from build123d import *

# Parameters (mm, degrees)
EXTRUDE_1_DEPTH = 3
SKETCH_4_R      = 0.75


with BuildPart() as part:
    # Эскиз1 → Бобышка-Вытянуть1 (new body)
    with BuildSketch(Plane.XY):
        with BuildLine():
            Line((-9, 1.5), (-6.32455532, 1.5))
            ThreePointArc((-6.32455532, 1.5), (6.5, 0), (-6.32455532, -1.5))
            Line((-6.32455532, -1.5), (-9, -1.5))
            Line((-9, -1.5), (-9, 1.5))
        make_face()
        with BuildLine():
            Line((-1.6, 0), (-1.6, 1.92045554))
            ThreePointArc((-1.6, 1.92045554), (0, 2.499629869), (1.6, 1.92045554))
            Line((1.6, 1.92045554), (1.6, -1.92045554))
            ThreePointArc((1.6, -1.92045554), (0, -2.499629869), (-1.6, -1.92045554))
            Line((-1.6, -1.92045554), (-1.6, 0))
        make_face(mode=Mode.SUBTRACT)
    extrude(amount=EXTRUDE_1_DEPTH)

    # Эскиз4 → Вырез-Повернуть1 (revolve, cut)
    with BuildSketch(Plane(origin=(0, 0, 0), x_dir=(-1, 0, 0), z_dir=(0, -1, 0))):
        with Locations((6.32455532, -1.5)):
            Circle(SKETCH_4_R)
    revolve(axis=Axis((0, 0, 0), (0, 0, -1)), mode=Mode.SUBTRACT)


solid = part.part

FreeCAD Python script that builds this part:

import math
import FreeCAD as App
import Part
import Sketcher
from FreeCAD import Vector
Q = App.Units.Quantity

doc = App.newDocument("Part")
body = doc.addObject("PartDesign::Body", "Body")

sketch1 = body.newObject("Sketcher::SketchObject", "Sketch")
sketch1.AttachmentSupport = (doc.getObject("XY_Plane"), [""])
sketch1.MapMode = "FlatFace"
sketch1.addGeometry(Part.LineSegment(Vector(-6.324555, 1.5, 0), Vector(-9, 1.5, 0)), False)
sketch1.addGeometry(Part.LineSegment(Vector(-9, 1.5, 0), Vector(-9, -1.5, 0)), False)
sketch1.addGeometry(Part.LineSegment(Vector(-9, -1.5, 0), Vector(-6.324555, -1.5, 0)), False)
sketch1.addGeometry(Part.ArcOfCircle(Part.Circle(Vector(0, 0, 0), Vector(0, 0, 1), 6.5), math.radians(-166.657636), math.radians(166.657636)), False)
sketch1.addGeometry(Part.ArcOfCircle(Part.Circle(Vector(0, 0, 0), Vector(0, 0, 1), 2.49963), math.radians(50.201114), math.radians(129.798886)), False)
sketch1.addGeometry(Part.LineSegment(Vector(1.6, 1.920456, 0), Vector(1.6, -1.920456, 0)), False)
sketch1.addGeometry(Part.ArcOfCircle(Part.Circle(Vector(0, 0, 0), Vector(0, 0, 1), 2.49963), math.radians(-129.798886), math.radians(-50.201114)), False)
sketch1.addGeometry(Part.LineSegment(Vector(-1.6, -1.920456, 0), Vector(-1.6, 1.920456, 0)), False)
sketch1.addConstraint(Sketcher.Constraint("Coincident", 0, 2, 1, 1))
sketch1.addConstraint(Sketcher.Constraint("Coincident", 1, 2, 2, 1))
sketch1.addConstraint(Sketcher.Constraint("Coincident", 2, 2, 3, 1))
sketch1.addConstraint(Sketcher.Constraint("Coincident", 3, 2, 0, 1))
sketch1.addConstraint(Sketcher.Constraint("Coincident", 4, 1, 5, 1))
sketch1.addConstraint(Sketcher.Constraint("Coincident", 5, 2, 6, 2))
sketch1.addConstraint(Sketcher.Constraint("Coincident", 6, 1, 7, 1))
sketch1.addConstraint(Sketcher.Constraint("Coincident", 7, 2, 4, 2))
sketch1.addConstraint(Sketcher.Constraint("Horizontal", 0))
sketch1.addConstraint(Sketcher.Constraint("Vertical", 1))
sketch1.addConstraint(Sketcher.Constraint("Horizontal", 2))
sketch1.addConstraint(Sketcher.Constraint("Vertical", 5))
sketch1.addConstraint(Sketcher.Constraint("Vertical", 7))
sketch1.addConstraint(Sketcher.Constraint("Coincident", 3, 3, -1, 1))
sketch1.addConstraint(Sketcher.Constraint("Coincident", 4, 3, -1, 1))
sketch1.addConstraint(Sketcher.Constraint("Coincident", 6, 3, -1, 1))
sketch1.addConstraint(Sketcher.Constraint("Equal", 4, 6))
sketch1.addConstraint(Sketcher.Constraint("Horizontal", 5, 2, 6, 1))
sketch1.addConstraint(Sketcher.Constraint("Vertical", 2, 2, 3, 2))
sketch1.addConstraint(Sketcher.Constraint("Radius", 3, Q("6.5 mm")))
sketch1.addConstraint(Sketcher.Constraint("DistanceY", 1, 2, 1, 1, Q("3 mm")))
sketch1.addConstraint(Sketcher.Constraint("DistanceX", 0, 2, -1, 1, Q("9 mm")))
sketch1.addConstraint(Sketcher.Constraint("DistanceX", -1, 1, 4, 1, Q("1.6 mm")))
sketch1.addConstraint(Sketcher.Constraint("Radius", 4, Q("2.49963 mm")))
pad1 = body.newObject("PartDesign::Pad", "Pad")
pad1.Profile = sketch1
pad1.Length = 3

sketch2 = body.newObject("Sketcher::SketchObject", "Sketch001")
sketch2.AttachmentSupport = (doc.getObject("XZ_Plane"), [""])
sketch2.MapMode = "FlatFace"
sketch2.addGeometry(Part.Circle(Vector(-6.324555, 1.5, 0), Vector(0, 0, 1), 0.75), False)
sketch2.addConstraint(Sketcher.Constraint("Diameter", 0, Q("1.5 mm")))
sketch2.addConstraint(Sketcher.Constraint("DistanceY", -1, 1, 0, 3, Q("1.5 mm")))
sketch2.addConstraint(Sketcher.Constraint("DistanceX", 0, 3, -1, 1, Q("6.324555 mm")))
groove = body.newObject("PartDesign::Groove", "Groove")
groove.Profile = sketch2
groove.ReferenceAxis = (sketch2, ["V_Axis"])
groove.Angle = 360

doc.recompute()
